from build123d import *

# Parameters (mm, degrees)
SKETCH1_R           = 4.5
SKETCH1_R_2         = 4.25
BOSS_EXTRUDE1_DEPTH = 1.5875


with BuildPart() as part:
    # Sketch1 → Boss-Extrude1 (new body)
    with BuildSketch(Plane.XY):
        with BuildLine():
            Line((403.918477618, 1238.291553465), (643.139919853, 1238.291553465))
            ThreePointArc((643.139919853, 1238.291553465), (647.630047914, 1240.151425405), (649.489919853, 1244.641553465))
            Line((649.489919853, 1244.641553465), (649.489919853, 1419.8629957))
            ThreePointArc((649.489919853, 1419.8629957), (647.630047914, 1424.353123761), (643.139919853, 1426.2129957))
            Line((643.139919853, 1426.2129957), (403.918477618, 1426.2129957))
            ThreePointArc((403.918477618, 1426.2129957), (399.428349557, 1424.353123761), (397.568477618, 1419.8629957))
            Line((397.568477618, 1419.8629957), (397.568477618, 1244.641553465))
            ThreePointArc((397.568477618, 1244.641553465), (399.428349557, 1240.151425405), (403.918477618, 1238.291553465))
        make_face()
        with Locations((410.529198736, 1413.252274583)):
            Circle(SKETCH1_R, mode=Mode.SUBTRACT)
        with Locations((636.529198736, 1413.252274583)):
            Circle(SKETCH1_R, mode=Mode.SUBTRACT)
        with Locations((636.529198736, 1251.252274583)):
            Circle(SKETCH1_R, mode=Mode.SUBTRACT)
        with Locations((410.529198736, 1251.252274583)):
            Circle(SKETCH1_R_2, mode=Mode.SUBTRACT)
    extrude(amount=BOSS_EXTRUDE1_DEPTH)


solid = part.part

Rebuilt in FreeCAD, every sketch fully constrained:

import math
import FreeCAD as App
import Part
import Sketcher
from FreeCAD import Vector

doc = App.newDocument("Part")
params = doc.addObject("Spreadsheet::Sheet", "Params")
for row, (alias, value) in enumerate([
    ("sketch1_diameter", "9 mm"),
    ("sketch1_diameter2", "8.5 mm"),
    ("sketch1_radius", "6.35 mm"),
    ("pad1_length", "1.5875 mm"),
], start=1):
    params.set(f"A{row}", alias)
    params.set(f"B{row}", "=" + value)
    params.setAlias(f"B{row}", alias)

body = doc.addObject("PartDesign::Body", "Body")

# Sketch on XY plane
sketch1 = doc.addObject("Sketcher::SketchObject", "Sketch")
body.addObject(sketch1)
sketch1.AttachmentSupport = (doc.XY_Plane, [""])
sketch1.MapMode = "FlatFace"
sketch1.addGeometry([
    Part.LineSegment(Vector(403.9, 1238.3, 0), Vector(643.1, 1238.3, 0)),  # 0
    Part.ArcOfCircle(Part.Circle(Vector(643.1, 1244.6, 0), Vector(0, 0, 1), 6.3), math.radians(-90), math.radians(0)),  # 1
    Part.LineSegment(Vector(649.5, 1244.6, 0), Vector(649.5, 1419.9, 0)),  # 2
    Part.ArcOfCircle(Part.Circle(Vector(643.1, 1419.9, 0), Vector(0, 0, 1), 6.3), math.radians(0), math.radians(90)),  # 3
    Part.LineSegment(Vector(643.1, 1426.2, 0), Vector(403.9, 1426.2, 0)),  # 4
    Part.ArcOfCircle(Part.Circle(Vector(403.9, 1419.9, 0), Vector(0, 0, 1), 6.3), math.radians(90), math.radians(180)),  # 5
    Part.LineSegment(Vector(397.6, 1419.9, 0), Vector(397.6, 1244.6, 0)),  # 6
    Part.ArcOfCircle(Part.Circle(Vector(403.9, 1244.6, 0), Vector(0, 0, 1), 6.3), math.radians(180), math.radians(270)),  # 7
    Part.Circle(Vector(410.5, 1251.3, 0), Vector(0, 0, 1), 4.2),  # 8
    Part.Circle(Vector(636.5, 1251.3, 0), Vector(0, 0, 1), 4.5),  # 9
    Part.Circle(Vector(410.5, 1413.3, 0), Vector(0, 0, 1), 4.5),  # 10
    Part.Circle(Vector(636.5, 1413.3, 0), Vector(0, 0, 1), 4.5),  # 11
], False)
sketch1.addConstraint([
    Sketcher.Constraint("Tangent", 0, 2, 1, 1),
    Sketcher.Constraint("Tangent", 1, 2, 2, 1),
    Sketcher.Constraint("Tangent", 2, 2, 3, 1),
    Sketcher.Constraint("Tangent", 3, 2, 4, 1),
    Sketcher.Constraint("Tangent", 4, 2, 5, 1),
    Sketcher.Constraint("Tangent", 5, 2, 6, 1),
    Sketcher.Constraint("Tangent", 6, 2, 7, 1),
    Sketcher.Constraint("Tangent", 7, 2, 0, 1),
    Sketcher.Constraint("Horizontal", 0),
    Sketcher.Constraint("Vertical", 2),
    Sketcher.Constraint("Horizontal", 4),
    Sketcher.Constraint("Vertical", 6),
    Sketcher.Constraint("Equal", 1, 3),
    Sketcher.Constraint("Equal", 3, 5),
    Sketcher.Constraint("Equal", 5, 7),
    Sketcher.Constraint("Equal", 9, 10),
    Sketcher.Constraint("Equal", 10, 11),
    Sketcher.Constraint("Horizontal", 8, 3, 9, 3),
    Sketcher.Constraint("Horizontal", 10, 3, 11, 3),
    Sketcher.Constraint("Vertical", 8, 3, 10, 3),
    Sketcher.Constraint("Vertical", 9, 3, 11, 3),
    Sketcher.Constraint("Diameter", 9, 9.0),
    Sketcher.Constraint("Diameter", 8, 8.5),
    Sketcher.Constraint("Radius", 1, 6.35),
    Sketcher.Constraint("DistanceX", 8, 3, 9, 3, 226.0),
    Sketcher.Constraint("DistanceY", 8, 3, 10, 3, 162.0),
    Sketcher.Constraint("DistanceX", -1, 1, 8, 3, 410.529199),
    Sketcher.Constraint("DistanceX", 0, 1, 0, 2, 239.221442),
    Sketcher.Constraint("DistanceY", 2, 1, 2, 2, 175.221442),
    Sketcher.Constraint("DistanceX", -1, 1, 1, 3, 643.13992),
    Sketcher.Constraint("DistanceY", 7, 3, 8, 3, 6.610721),
    Sketcher.Constraint("DistanceY", -1, 1, 1, 3, 1244.641553),
])
sketch1.setExpression("Constraints[21]", "Params.sketch1_diameter")
sketch1.setExpression("Constraints[22]", "Params.sketch1_diameter2")
sketch1.setExpression("Constraints[23]", "Params.sketch1_radius")
pad1 = doc.addObject("PartDesign::Pad", "Pad")
body.addObject(pad1)
pad1.Profile = sketch1
pad1.setExpression("Length", "Params.pad1_length")

doc.recompute()
